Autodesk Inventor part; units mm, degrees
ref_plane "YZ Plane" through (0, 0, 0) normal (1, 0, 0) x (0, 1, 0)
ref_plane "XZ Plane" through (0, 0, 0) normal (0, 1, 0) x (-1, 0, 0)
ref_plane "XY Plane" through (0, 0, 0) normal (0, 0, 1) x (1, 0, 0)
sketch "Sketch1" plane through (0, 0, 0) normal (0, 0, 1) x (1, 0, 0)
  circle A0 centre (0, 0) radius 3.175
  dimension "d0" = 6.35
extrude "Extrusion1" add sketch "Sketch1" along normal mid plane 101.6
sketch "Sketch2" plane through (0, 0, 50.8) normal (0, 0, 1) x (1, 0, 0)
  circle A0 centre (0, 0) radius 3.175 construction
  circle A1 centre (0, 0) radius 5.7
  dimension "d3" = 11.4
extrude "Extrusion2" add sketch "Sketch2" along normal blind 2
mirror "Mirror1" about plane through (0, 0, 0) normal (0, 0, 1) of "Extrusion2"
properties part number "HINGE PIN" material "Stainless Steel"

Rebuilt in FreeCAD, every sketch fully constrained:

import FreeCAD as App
import Part
import Sketcher

V = App.Vector

doc = App.newDocument("Part")
body = doc.addObject("PartDesign::Body", "Body")

# Sketch on XY plane
sketch1 = body.newObject("Sketcher::SketchObject", "Sketch")
sketch1.AttachmentSupport = (doc.getObject("XY_Plane"), [""])
sketch1.MapMode = "FlatFace"
sketch1.addGeometry(Part.Circle(V(0, 0, 0), V(0, 0, 1), 3.2), False)
sketch1.addConstraint([
    Sketcher.Constraint("Coincident", 0, 3, -1, 1),
    Sketcher.Constraint("Diameter", 0, 6.35),
])
pad1 = body.newObject("PartDesign::Pad", "Pad")
pad1.Profile = sketch1
pad1.Length = 101.6
pad1.Midplane = True

# Sketch on XY plane
sketch2 = body.newObject("Sketcher::SketchObject", "Sketch001")
sketch2.AttachmentSupport = (doc.getObject("XY_Plane"), [""])
sketch2.MapMode = "FlatFace"
sketch2.AttachmentOffset = App.Placement(V(0, 0, 50.8), App.Rotation())
sketch2.addGeometry(Part.Circle(V(0, 0, 0), V(0, 0, 1), 6), False)
sketch2.addConstraint([
    Sketcher.Constraint("Coincident", 0, 3, -1, 1),
    Sketcher.Constraint("Diameter", 0, 11.4),
])
pad2 = body.newObject("PartDesign::Pad", "Pad001")
pad2.Profile = sketch2
pad2.Length = 2
doc.recompute()

mirrored = body.newObject("PartDesign::Mirrored", "Mirrored")
mirrored.Originals = [pad2]
mirrored.MirrorPlane = (doc.getObject("XY_Plane"), [""])
body.Tip = mirrored

doc.recompute()
